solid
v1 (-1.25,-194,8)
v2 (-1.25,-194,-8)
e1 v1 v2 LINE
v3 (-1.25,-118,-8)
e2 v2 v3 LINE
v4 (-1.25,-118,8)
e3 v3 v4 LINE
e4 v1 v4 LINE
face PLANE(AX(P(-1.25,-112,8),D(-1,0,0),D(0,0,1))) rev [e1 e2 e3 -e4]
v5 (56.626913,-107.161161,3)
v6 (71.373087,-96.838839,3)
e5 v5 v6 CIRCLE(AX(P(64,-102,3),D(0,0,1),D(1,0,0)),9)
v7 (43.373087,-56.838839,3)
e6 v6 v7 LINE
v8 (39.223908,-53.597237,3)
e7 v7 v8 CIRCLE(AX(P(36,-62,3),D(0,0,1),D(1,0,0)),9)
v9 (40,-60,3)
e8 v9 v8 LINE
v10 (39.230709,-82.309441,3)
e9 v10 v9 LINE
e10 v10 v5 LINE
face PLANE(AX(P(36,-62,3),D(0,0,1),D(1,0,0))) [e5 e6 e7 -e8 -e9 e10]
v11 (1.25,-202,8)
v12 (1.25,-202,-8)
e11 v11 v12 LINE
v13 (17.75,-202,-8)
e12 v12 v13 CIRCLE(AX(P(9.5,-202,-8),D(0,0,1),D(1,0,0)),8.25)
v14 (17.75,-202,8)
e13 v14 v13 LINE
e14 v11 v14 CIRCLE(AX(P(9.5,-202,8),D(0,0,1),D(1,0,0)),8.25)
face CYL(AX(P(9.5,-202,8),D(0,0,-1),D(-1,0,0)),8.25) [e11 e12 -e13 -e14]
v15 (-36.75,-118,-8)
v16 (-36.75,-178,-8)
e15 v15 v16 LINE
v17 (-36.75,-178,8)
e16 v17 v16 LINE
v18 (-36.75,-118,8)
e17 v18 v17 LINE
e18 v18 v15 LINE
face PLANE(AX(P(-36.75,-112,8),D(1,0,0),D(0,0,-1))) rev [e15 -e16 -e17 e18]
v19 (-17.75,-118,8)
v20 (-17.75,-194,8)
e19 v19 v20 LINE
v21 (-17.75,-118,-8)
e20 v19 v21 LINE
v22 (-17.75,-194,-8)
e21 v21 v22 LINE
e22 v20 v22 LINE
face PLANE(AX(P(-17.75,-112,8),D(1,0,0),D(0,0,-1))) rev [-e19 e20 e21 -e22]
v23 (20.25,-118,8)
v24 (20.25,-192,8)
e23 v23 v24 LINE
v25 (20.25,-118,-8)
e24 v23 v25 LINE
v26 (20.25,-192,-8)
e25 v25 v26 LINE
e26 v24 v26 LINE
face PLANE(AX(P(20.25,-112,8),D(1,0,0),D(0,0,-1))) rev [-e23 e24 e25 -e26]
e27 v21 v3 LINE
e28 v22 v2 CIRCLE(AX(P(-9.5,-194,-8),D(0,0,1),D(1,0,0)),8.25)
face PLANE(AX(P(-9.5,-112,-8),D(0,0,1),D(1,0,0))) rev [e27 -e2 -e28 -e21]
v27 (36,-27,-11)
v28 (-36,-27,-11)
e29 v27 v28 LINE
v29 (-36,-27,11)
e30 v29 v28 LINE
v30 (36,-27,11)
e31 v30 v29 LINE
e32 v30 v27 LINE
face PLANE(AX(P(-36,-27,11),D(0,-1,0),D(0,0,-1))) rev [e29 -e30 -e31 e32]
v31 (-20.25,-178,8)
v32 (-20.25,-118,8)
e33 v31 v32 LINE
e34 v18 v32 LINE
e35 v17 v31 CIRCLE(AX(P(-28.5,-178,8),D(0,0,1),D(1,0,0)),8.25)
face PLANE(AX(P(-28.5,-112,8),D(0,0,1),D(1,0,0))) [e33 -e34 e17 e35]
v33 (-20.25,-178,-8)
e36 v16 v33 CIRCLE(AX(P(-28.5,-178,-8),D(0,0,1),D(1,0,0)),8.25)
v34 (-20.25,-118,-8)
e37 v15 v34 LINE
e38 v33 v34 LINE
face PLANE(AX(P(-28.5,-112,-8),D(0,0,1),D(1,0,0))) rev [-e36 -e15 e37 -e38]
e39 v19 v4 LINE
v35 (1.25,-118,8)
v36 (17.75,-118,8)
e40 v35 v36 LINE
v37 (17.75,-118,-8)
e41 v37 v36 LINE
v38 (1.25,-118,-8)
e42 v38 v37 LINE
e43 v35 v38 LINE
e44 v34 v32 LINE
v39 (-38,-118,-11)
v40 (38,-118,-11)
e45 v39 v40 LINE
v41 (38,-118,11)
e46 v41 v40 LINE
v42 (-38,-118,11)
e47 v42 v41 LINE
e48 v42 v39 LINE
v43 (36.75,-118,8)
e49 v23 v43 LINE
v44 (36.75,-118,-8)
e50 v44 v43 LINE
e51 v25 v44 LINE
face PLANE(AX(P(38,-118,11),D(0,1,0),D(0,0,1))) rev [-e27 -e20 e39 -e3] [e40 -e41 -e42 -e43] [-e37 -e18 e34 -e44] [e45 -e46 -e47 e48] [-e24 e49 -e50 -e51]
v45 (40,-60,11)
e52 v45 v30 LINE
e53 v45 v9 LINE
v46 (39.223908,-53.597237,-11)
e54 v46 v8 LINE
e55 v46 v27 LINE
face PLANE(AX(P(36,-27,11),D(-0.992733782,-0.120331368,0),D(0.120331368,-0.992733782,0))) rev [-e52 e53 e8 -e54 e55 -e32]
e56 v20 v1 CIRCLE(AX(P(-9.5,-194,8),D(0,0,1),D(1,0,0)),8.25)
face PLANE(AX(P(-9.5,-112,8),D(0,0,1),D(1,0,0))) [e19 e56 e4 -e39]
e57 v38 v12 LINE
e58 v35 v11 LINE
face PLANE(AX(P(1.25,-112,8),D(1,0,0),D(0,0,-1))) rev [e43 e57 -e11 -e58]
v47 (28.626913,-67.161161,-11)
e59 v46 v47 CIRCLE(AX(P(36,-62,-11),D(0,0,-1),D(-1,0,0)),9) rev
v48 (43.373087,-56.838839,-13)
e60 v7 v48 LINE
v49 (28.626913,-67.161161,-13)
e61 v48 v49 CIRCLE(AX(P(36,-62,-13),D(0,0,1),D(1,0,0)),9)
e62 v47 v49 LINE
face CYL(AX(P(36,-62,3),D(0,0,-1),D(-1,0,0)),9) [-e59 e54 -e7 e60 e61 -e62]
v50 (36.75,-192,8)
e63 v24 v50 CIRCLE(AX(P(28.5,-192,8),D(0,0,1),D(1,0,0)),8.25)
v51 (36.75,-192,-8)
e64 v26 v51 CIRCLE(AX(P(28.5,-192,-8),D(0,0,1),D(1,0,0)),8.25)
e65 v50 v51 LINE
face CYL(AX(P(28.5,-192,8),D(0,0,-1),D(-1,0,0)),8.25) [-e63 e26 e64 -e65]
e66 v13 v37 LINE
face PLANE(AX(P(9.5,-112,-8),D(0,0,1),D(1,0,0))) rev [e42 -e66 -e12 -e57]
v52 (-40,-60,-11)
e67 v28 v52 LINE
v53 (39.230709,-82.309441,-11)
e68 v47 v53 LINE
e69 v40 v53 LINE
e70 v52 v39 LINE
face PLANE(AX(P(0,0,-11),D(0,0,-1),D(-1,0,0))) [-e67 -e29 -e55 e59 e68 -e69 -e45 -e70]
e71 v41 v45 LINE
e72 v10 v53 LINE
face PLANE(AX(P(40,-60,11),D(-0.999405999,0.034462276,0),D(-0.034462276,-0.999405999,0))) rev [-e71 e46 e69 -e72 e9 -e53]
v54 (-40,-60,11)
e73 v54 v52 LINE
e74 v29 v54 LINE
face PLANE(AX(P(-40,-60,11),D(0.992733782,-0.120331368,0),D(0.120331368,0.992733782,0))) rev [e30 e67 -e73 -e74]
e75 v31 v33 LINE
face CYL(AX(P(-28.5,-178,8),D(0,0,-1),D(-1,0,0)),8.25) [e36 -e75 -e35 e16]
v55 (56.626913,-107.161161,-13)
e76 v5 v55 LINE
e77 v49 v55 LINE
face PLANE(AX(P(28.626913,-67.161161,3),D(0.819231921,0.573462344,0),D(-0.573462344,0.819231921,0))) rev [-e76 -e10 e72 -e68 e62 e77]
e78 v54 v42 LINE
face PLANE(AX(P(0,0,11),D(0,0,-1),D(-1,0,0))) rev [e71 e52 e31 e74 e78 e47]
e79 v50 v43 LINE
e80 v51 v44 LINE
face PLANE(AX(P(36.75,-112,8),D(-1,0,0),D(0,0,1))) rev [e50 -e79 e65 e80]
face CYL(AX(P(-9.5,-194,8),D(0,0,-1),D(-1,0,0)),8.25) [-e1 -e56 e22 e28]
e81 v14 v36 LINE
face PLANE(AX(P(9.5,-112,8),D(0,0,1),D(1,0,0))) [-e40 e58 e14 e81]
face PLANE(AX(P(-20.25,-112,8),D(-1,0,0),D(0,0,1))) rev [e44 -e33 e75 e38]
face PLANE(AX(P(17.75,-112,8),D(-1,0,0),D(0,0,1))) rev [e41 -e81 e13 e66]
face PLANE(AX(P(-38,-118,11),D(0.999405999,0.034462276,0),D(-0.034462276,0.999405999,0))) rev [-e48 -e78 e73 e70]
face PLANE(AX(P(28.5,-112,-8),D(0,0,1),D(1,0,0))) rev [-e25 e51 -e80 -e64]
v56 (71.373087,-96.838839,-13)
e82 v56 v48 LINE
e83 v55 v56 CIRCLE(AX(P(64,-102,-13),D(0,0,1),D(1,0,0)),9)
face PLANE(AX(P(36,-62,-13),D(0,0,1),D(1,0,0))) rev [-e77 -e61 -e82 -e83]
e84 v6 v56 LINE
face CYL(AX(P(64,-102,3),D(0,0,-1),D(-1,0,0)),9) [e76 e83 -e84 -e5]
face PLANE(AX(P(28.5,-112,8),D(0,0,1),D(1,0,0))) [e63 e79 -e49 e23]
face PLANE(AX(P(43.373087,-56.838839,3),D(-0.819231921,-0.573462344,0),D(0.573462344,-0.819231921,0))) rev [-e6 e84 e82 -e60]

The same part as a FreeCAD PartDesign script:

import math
import FreeCAD as App
import Part
import Sketcher


def add_polygon(sketch, points):
    """Adds a closed chain of lines whose ends are joined by coincident constraints."""
    first, n = sketch.GeometryCount, len(points)
    for a, b in zip(points, points[1:] + points[:1]):
        sketch.addGeometry(Part.LineSegment(App.Vector(*a, 0), App.Vector(*b, 0)), False)
    for i in range(n):
        sketch.addConstraint(Sketcher.Constraint("Coincident", first + i, 2, first + (i + 1) % n, 1))

doc = App.newDocument("Part")
body = doc.addObject("PartDesign::Body", "Body")

# Sketch on XY plane
sketch1 = body.newObject("Sketcher::SketchObject", "Sketch")
sketch1.AttachmentSupport = (doc.getObject("XY_Plane"), [""])
sketch1.MapMode = "FlatFace"
sketch1.AttachmentOffset = App.Placement(App.Vector(0, 0, -11), App.Rotation())
add_polygon(sketch1, [(36, -27), (-36, -27), (-40, -60), (-38, -118), (38, -118), (40, -60)])  # lines 0-5
sketch1.addConstraint([
    Sketcher.Constraint("Horizontal", 0),
    Sketcher.Constraint("Horizontal", 3),
    Sketcher.Constraint("Symmetric", 1, 2, 4, 2, -2),
    Sketcher.Constraint("Equal", 2, 4),
    Sketcher.Constraint("Equal", 1, 5),
    Sketcher.Constraint("DistanceX", 0, 2, 0, 1, 72.0),
    Sketcher.Constraint("DistanceX", 3, 1, 3, 2, 76.0),
    Sketcher.Constraint("DistanceY", 0, 2, -1, 1, 27.0),
    Sketcher.Constraint("DistanceX", 1, 2, -1, 1, 40.0),
    Sketcher.Constraint("DistanceY", 1, 2, -1, 1, 60.0),
    Sketcher.Constraint("DistanceY", 2, 2, -1, 1, 118.0),
])
pad1 = body.newObject("PartDesign::Pad", "Pad")
pad1.Profile = sketch1
pad1.Length = 22

# Sketch on XY plane
sketch2 = body.newObject("Sketcher::SketchObject", "Sketch001")
sketch2.AttachmentSupport = (doc.getObject("XY_Plane"), [""])
sketch2.MapMode = "FlatFace"
sketch2.AttachmentOffset = App.Placement(App.Vector(0, 0, -8), App.Rotation())
sketch2.addGeometry([
    Part.LineSegment(App.Vector(-20, -178, 0), App.Vector(-20, -112, 0)),
    Part.ArcOfCircle(Part.Circle(App.Vector(-28, -112, 0), App.Vector(0, 0, 1), 8), math.radians(0), math.radians(180)),
    Part.LineSegment(App.Vector(-37, -112, 0), App.Vector(-37, -178, 0)),
    Part.ArcOfCircle(Part.Circle(App.Vector(-28, -178, 0), App.Vector(0, 0, 1), 8), math.radians(180), math.radians(360)),
], False)
sketch2.addConstraint([
    Sketcher.Constraint("Tangent", 0, 2, 1, 1),
    Sketcher.Constraint("Tangent", 1, 2, 2, 1),
    Sketcher.Constraint("Tangent", 2, 2, 3, 1),
    Sketcher.Constraint("Tangent", 3, 2, 0, 1),
    Sketcher.Constraint("Vertical", 0),
    Sketcher.Constraint("Vertical", 2),
    Sketcher.Constraint("DistanceY", 0, 1, 0, 2, 66.0),
    Sketcher.Constraint("Radius", 1, 8.25),
    Sketcher.Constraint("DistanceY", 1, 3, -1, 1, 112.0),
    Sketcher.Constraint("DistanceX", 1, 3, -1, 1, 28.5),
])
pad2 = body.newObject("PartDesign::Pad", "Pad001")
pad2.Profile = sketch2
pad2.Length = 16

# Sketch on XY plane
sketch3 = body.newObject("Sketcher::SketchObject", "Sketch002")
sketch3.AttachmentSupport = (doc.getObject("XY_Plane"), [""])
sketch3.MapMode = "FlatFace"
sketch3.AttachmentOffset = App.Placement(App.Vector(0, 0, -8), App.Rotation())
sketch3.addGeometry([
    Part.LineSegment(App.Vector(-1, -194, 0), App.Vector(-1, -112, 0)),
    Part.ArcOfCircle(Part.Circle(App.Vector(-10, -112, 0), App.Vector(0, 0, 1), 8), math.radians(0), math.radians(180)),
    Part.LineSegment(App.Vector(-18, -112, 0), App.Vector(-18, -194, 0)),
    Part.ArcOfCircle(Part.Circle(App.Vector(-10, -194, 0), App.Vector(0, 0, 1), 8), math.radians(180), math.radians(360)),
], False)
sketch3.addConstraint([
    Sketcher.Constraint("Tangent", 0, 2, 1, 1),
    Sketcher.Constraint("Tangent", 1, 2, 2, 1),
    Sketcher.Constraint("Tangent", 2, 2, 3, 1),
    Sketcher.Constraint("Tangent", 3, 2, 0, 1),
    Sketcher.Constraint("Vertical", 0),
    Sketcher.Constraint("Vertical", 2),
    Sketcher.Constraint("DistanceY", 0, 1, 0, 2, 82.0),
    Sketcher.Constraint("Radius", 1, 8.25),
    Sketcher.Constraint("DistanceY", 1, 3, -1, 1, 112.0),
    Sketcher.Constraint("DistanceX", 1, 3, -1, 1, 9.5),
])
pad3 = body.newObject("PartDesign::Pad", "Pad002")
pad3.Profile = sketch3
pad3.Length = 16

# Sketch on XY plane
sketch4 = body.newObject("Sketcher::SketchObject", "Sketch003")
sketch4.AttachmentSupport = (doc.getObject("XY_Plane"), [""])
sketch4.MapMode = "FlatFace"
sketch4.AttachmentOffset = App.Placement(App.Vector(0, 0, -8), App.Rotation())
sketch4.addGeometry([
    Part.LineSegment(App.Vector(18, -202, 0), App.Vector(18, -112, 0)),
    Part.ArcOfCircle(Part.Circle(App.Vector(10, -112, 0), App.Vector(0, 0, 1), 8), math.radians(0), math.radians(180)),
    Part.LineSegment(App.Vector(1, -112, 0), App.Vector(1, -202, 0)),
    Part.ArcOfCircle(Part.Circle(App.Vector(10, -202, 0), App.Vector(0, 0, 1), 8), math.radians(180), math.radians(360)),
], False)
sketch4.addConstraint([
    Sketcher.Constraint("Tangent", 0, 2, 1, 1),
    Sketcher.Constraint("Tangent", 1, 2, 2, 1),
    Sketcher.Constraint("Tangent", 2, 2, 3, 1),
    Sketcher.Constraint("Tangent", 3, 2, 0, 1),
    Sketcher.Constraint("Vertical", 0),
    Sketcher.Constraint("Vertical", 2),
    Sketcher.Constraint("DistanceY", 0, 1, 0, 2, 90.0),
    Sketcher.Constraint("Radius", 1, 8.25),
    Sketcher.Constraint("DistanceY", 1, 3, -1, 1, 112.0),
    Sketcher.Constraint("DistanceX", -1, 1, 1, 3, 9.5),
])
pad4 = body.newObject("PartDesign::Pad", "Pad003")
pad4.Profile = sketch4
pad4.Length = 16

# Sketch on XY plane
sketch5 = body.newObject("Sketcher::SketchObject", "Sketch004")
sketch5.AttachmentSupport = (doc.getObject("XY_Plane"), [""])
sketch5.MapMode = "FlatFace"
sketch5.AttachmentOffset = App.Placement(App.Vector(0, 0, -8), App.Rotation())
sketch5.addGeometry([
    Part.LineSegment(App.Vector(37, -192, 0), App.Vector(37, -112, 0)),
    Part.ArcOfCircle(Part.Circle(App.Vector(28, -112, 0), App.Vector(0, 0, 1), 8), math.radians(0), math.radians(180)),
    Part.LineSegment(App.Vector(20, -112, 0), App.Vector(20, -192, 0)),
    Part.ArcOfCircle(Part.Circle(App.Vector(28, -192, 0), App.Vector(0, 0, 1), 8), math.radians(180), math.radians(360)),
], False)
sketch5.addConstraint([
    Sketcher.Constraint("Tangent", 0, 2, 1, 1),
    Sketcher.Constraint("Tangent", 1, 2, 2, 1),
    Sketcher.Constraint("Tangent", 2, 2, 3, 1),
    Sketcher.Constraint("Tangent", 3, 2, 0, 1),
    Sketcher.Constraint("Vertical", 0),
    Sketcher.Constraint("Vertical", 2),
    Sketcher.Constraint("DistanceY", 0, 1, 0, 2, 80.0),
    Sketcher.Constraint("Radius", 1, 8.25),
    Sketcher.Constraint("DistanceY", 1, 3, -1, 1, 112.0),
    Sketcher.Constraint("DistanceX", -1, 1, 1, 3, 28.5),
])
pad5 = body.newObject("PartDesign::Pad", "Pad004")
pad5.Profile = sketch5
pad5.Length = 16

# Sketch on XY plane
sketch6 = body.newObject("Sketcher::SketchObject", "Sketch005")
sketch6.AttachmentSupport = (doc.getObject("XY_Plane"), [""])
sketch6.MapMode = "FlatFace"
sketch6.AttachmentOffset = App.Placement(App.Vector(0, 0, -13), App.Rotation())
sketch6.addGeometry([
    Part.LineSegment(App.Vector(71, -97, 0), App.Vector(43, -57, 0)),
    Part.ArcOfCircle(Part.Circle(App.Vector(36, -62, 0), App.Vector(0, 0, 1), 9), math.radians(35), math.radians(215)),
    Part.LineSegment(App.Vector(29, -67, 0), App.Vector(57, -107, 0)),
    Part.ArcOfCircle(Part.Circle(App.Vector(64, -102, 0), App.Vector(0, 0, 1), 9), math.radians(-145), math.radians(35)),
], False)
sketch6.addConstraint([
    Sketcher.Constraint("Tangent", 0, 2, 1, 1),
    Sketcher.Constraint("Tangent", 1, 2, 2, 1),
    Sketcher.Constraint("Tangent", 2, 2, 3, 1),
    Sketcher.Constraint("Tangent", 3, 2, 0, 1),
    Sketcher.Constraint("Equal", 1, 3),
    Sketcher.Constraint("Radius", 1, 9.0),
    Sketcher.Constraint("DistanceX", -1, 1, 1, 3, 36.0),
    Sketcher.Constraint("DistanceY", 1, 3, -1, 1, 62.0),
    Sketcher.Constraint("DistanceX", -1, 1, 3, 3, 64.0),
    Sketcher.Constraint("DistanceY", 3, 3, -1, 1, 102.0),
])
pad6 = body.newObject("PartDesign::Pad", "Pad005")
pad6.Profile = sketch6
pad6.Length = 16

doc.recompute()
